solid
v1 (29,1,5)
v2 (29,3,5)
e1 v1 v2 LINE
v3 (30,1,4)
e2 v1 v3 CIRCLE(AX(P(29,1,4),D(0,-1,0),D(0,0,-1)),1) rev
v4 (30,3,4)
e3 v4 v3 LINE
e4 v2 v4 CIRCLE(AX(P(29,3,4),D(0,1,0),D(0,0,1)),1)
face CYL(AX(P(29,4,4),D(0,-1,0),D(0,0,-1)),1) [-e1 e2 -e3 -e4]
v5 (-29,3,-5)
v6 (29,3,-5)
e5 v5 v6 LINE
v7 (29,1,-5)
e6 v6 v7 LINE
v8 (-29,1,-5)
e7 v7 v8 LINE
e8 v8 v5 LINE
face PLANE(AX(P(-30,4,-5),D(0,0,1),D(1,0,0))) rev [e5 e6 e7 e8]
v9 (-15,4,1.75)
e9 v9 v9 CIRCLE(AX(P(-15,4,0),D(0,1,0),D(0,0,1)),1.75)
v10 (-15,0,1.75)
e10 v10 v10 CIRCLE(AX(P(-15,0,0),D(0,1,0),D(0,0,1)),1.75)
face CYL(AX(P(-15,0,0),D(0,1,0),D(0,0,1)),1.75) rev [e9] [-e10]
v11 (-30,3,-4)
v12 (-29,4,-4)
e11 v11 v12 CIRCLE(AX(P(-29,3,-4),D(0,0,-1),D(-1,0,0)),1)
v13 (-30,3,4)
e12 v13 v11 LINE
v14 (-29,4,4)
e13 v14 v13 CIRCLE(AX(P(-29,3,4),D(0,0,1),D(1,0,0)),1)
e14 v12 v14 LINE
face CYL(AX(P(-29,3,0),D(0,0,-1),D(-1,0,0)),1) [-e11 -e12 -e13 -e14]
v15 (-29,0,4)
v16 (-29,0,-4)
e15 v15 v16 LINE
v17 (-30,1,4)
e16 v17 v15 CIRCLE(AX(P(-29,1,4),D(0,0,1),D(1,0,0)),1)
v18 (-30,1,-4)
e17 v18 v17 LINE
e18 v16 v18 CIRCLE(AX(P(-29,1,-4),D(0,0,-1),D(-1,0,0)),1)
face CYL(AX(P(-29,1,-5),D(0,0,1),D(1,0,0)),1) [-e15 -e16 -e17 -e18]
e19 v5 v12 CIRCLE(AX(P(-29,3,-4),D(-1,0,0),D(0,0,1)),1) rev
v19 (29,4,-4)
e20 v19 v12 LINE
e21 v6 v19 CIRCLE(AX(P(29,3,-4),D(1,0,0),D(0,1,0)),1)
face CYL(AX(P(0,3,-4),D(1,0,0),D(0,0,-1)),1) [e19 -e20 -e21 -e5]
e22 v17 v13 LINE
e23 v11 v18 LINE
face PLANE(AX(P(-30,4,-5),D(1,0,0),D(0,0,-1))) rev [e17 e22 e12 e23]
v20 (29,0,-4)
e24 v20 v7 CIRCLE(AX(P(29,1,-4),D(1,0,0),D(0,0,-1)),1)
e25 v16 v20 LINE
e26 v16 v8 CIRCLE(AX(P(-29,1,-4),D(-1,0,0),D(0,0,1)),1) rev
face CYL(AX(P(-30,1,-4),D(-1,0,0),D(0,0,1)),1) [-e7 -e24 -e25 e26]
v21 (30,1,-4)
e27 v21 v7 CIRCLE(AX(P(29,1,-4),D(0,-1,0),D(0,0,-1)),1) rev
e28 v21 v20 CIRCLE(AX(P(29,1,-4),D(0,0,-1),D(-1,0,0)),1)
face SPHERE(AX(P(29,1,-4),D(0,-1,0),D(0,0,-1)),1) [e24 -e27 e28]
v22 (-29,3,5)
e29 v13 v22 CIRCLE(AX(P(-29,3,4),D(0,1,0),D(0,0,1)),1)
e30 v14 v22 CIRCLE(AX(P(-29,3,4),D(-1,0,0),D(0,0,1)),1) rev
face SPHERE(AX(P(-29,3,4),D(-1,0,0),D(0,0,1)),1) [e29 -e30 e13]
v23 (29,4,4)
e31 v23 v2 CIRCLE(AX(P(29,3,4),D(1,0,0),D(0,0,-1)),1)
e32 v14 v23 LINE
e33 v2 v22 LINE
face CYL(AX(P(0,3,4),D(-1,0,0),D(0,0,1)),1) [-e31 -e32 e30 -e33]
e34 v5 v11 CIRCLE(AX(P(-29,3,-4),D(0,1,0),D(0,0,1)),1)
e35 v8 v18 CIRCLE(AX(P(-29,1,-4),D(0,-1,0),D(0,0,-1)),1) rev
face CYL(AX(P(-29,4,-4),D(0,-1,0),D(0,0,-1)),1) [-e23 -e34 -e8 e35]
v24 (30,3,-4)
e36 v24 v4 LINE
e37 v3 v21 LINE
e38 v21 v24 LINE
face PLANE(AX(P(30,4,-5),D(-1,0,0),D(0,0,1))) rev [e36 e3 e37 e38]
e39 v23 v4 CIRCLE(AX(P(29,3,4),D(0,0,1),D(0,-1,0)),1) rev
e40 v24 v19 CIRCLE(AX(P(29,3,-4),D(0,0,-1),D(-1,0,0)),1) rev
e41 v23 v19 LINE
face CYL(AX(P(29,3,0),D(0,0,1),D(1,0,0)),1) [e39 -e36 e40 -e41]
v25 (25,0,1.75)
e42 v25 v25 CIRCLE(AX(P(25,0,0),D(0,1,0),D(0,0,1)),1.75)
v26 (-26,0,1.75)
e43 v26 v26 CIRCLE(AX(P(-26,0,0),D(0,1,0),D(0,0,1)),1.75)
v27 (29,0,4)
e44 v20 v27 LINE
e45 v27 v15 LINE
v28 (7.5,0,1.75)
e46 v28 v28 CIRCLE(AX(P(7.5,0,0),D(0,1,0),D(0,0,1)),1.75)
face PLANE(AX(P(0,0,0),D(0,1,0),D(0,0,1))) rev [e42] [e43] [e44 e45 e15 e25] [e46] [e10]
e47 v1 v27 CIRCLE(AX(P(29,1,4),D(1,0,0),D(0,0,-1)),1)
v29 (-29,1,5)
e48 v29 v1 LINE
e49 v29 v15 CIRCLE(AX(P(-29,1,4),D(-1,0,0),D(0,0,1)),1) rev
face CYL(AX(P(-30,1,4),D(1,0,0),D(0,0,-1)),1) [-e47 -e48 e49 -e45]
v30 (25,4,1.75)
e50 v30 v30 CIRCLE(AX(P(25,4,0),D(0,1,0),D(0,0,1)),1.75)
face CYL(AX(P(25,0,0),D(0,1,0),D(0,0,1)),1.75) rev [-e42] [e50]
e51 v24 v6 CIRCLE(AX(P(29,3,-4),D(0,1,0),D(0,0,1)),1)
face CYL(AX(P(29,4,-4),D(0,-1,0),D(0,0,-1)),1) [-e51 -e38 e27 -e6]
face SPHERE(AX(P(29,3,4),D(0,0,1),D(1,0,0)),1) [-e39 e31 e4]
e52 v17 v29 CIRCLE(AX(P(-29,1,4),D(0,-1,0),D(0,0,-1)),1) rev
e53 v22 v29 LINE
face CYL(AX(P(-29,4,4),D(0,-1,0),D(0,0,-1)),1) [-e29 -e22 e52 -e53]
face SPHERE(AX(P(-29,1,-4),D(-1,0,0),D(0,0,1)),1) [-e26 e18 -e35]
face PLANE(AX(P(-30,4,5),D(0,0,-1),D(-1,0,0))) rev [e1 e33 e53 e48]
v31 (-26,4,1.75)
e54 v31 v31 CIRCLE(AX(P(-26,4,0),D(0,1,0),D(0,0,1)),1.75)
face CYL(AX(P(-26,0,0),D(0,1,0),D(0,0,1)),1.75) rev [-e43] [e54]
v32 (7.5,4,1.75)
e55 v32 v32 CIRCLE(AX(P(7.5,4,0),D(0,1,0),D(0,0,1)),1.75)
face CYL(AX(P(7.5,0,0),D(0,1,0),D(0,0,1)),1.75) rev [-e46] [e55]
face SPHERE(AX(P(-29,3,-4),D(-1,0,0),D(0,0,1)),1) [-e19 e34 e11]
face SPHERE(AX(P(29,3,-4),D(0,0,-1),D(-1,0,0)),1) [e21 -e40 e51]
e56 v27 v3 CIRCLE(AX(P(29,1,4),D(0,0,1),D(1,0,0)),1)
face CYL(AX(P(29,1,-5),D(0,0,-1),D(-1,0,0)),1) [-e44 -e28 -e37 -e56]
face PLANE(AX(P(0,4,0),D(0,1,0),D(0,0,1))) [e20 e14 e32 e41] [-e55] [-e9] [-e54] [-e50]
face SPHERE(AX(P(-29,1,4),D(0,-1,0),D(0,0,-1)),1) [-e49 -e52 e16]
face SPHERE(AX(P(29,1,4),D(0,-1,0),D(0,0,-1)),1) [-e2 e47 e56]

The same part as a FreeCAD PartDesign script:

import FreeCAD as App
import Part
import Sketcher

V = App.Vector
Q = App.Units.Quantity


def edges_at(feature, points):
    """Names of the edges that pass closest to the given points."""
    edges = feature.Shape.Edges
    near = lambda p: min(range(len(edges)), key=lambda i: edges[i].distToShape(Part.Vertex(*p))[0])
    return sorted({f"Edge{near(p) + 1}" for p in points})

doc = App.newDocument("Part")
params = doc.addObject("Spreadsheet::Sheet", "Params")
for row, (alias, value) in enumerate([
    ("sketch1_width", "60 mm"),
    ("sketch1_height", "10 mm"),
    ("pad1_length", "4 mm"),
    ("sketch2_diameter", "3.5 mm"),
    ("pocket1_length", "4 mm"),
    ("fillet_radius", "1 mm"),
], start=1):
    params.set(f"A{row}", alias)
    params.set(f"B{row}", "=" + value)
    params.setAlias(f"B{row}", alias)

body = doc.addObject("PartDesign::Body", "Body")

# Sketch on XZ plane
sketch1 = doc.addObject("Sketcher::SketchObject", "Sketch")
body.addObject(sketch1)
sketch1.AttachmentSupport = (doc.XZ_Plane, [""])
sketch1.MapMode = "FlatFace"
sketch1.addGeometry(Part.LineSegment(V(-30, -5, 0), V(-30, 5, 0)), False)
sketch1.addGeometry(Part.LineSegment(V(-30, 5, 0), V(30, 5, 0)), False)
sketch1.addGeometry(Part.LineSegment(V(30, 5, 0), V(30, -5, 0)), False)
sketch1.addGeometry(Part.LineSegment(V(30, -5, 0), V(-30, -5, 0)), False)
sketch1.addConstraint(Sketcher.Constraint("Coincident", 0, 2, 1, 1))
sketch1.addConstraint(Sketcher.Constraint("Coincident", 1, 2, 2, 1))
sketch1.addConstraint(Sketcher.Constraint("Coincident", 2, 2, 3, 1))
sketch1.addConstraint(Sketcher.Constraint("Coincident", 3, 2, 0, 1))
sketch1.addConstraint(Sketcher.Constraint("Vertical", 0))
sketch1.addConstraint(Sketcher.Constraint("Horizontal", 1))
sketch1.addConstraint(Sketcher.Constraint("Vertical", 2))
sketch1.addConstraint(Sketcher.Constraint("Horizontal", 3))
sketch1.addConstraint(Sketcher.Constraint("Symmetric", 0, 2, 2, 2, -1, 1))
sketch1.addConstraint(Sketcher.Constraint("DistanceX", 1, 1, 1, 2, Q("60 mm")))
sketch1.addConstraint(Sketcher.Constraint("DistanceY", 0, 1, 0, 2, Q("10 mm")))
sketch1.setExpression("Constraints[9]", "Params.sketch1_width")
sketch1.setExpression("Constraints[10]", "Params.sketch1_height")
pad1 = doc.addObject("PartDesign::Pad", "Pad")
body.addObject(pad1)
pad1.Profile = sketch1
pad1.setExpression("Length", "Params.pad1_length")
pad1.Reversed = True

# Sketch on XZ plane
sketch2 = doc.addObject("Sketcher::SketchObject", "Sketch001")
body.addObject(sketch2)
sketch2.AttachmentSupport = (doc.XZ_Plane, [""])
sketch2.MapMode = "FlatFace"
sketch2.AttachmentOffset = App.Placement(V(0, 0, -4), App.Rotation())
sketch2.addGeometry(Part.Circle(V(-26, 0, 0), V(0, 0, 1), 1.8), False)
sketch2.addGeometry(Part.Circle(V(7.5, 0, 0), V(0, 0, 1), 1.8), False)
sketch2.addGeometry(Part.Circle(V(25, 0, 0), V(0, 0, 1), 1.8), False)
sketch2.addGeometry(Part.Circle(V(-15, 0, 0), V(0, 0, 1), 1.8), False)
sketch2.addConstraint(Sketcher.Constraint("Equal", 0, 1))
sketch2.addConstraint(Sketcher.Constraint("Equal", 1, 2))
sketch2.addConstraint(Sketcher.Constraint("Equal", 2, 3))
sketch2.addConstraint(Sketcher.Constraint("PointOnObject", 0, 3, -1))
sketch2.addConstraint(Sketcher.Constraint("PointOnObject", 1, 3, -1))
sketch2.addConstraint(Sketcher.Constraint("PointOnObject", 2, 3, -1))
sketch2.addConstraint(Sketcher.Constraint("PointOnObject", 3, 3, -1))
sketch2.addConstraint(Sketcher.Constraint("Diameter", 0, Q("3.5 mm")))
sketch2.addConstraint(Sketcher.Constraint("DistanceX", 0, 3, -1, 1, Q("26 mm")))
sketch2.addConstraint(Sketcher.Constraint("DistanceX", -1, 1, 2, 3, Q("25 mm")))
sketch2.addConstraint(Sketcher.Constraint("DistanceX", 3, 3, -1, 1, Q("15 mm")))
sketch2.addConstraint(Sketcher.Constraint("DistanceX", -1, 1, 1, 3, Q("7.5 mm")))
sketch2.setExpression("Constraints[7]", "Params.sketch2_diameter")
pocket1 = doc.addObject("PartDesign::Pocket", "Pocket")
body.addObject(pocket1)
pocket1.Profile = sketch2
pocket1.setExpression("Length", "Params.pocket1_length")
pocket1.Reversed = True
doc.recompute()

fillet = doc.addObject("PartDesign::Fillet", "Fillet")
body.addObject(fillet)
fillet.Base = (pocket1, edges_at(pocket1, [
    (-30, 4, 0),
    (0, 4, 5),
    (30, 4, 0),
    (0, 0, 5),
    (-30, 0, 0),
    (0, 0, -5),
    (30, 0, 0),
    (30, 2, 5),
    (-30, 2, 5),
    (-30, 2, -5),
    (30, 2, -5),
    (0, 4, -5),
]))
fillet.setExpression("Radius", "Params.fillet_radius")

doc.recompute()
